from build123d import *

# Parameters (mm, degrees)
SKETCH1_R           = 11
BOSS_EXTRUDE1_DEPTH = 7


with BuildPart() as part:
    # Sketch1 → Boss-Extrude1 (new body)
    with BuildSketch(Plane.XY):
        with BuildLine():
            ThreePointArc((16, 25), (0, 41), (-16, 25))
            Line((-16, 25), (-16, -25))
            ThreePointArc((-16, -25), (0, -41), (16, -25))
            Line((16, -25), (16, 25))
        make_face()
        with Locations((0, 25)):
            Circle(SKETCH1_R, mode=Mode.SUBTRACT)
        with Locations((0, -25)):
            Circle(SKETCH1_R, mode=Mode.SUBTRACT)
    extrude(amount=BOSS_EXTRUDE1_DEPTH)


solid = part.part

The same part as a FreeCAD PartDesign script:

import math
import FreeCAD as App
import Part
import Sketcher

V = App.Vector
Q = App.Units.Quantity

doc = App.newDocument("Part")
body = doc.addObject("PartDesign::Body", "Body")

sketch1 = body.newObject("Sketcher::SketchObject", "Sketch")
sketch1.AttachmentSupport = (doc.getObject("XY_Plane"), [""])
sketch1.MapMode = "FlatFace"
sketch1.addGeometry(Part.ArcOfCircle(Part.Circle(V(0, 25, 0), V(0, 0, 1), 16), math.radians(0), math.radians(180)), False)
sketch1.addGeometry(Part.LineSegment(V(-16, 25, 0), V(-16, -25, 0)), False)
sketch1.addGeometry(Part.ArcOfCircle(Part.Circle(V(0, -25, 0), V(0, 0, 1), 16), math.radians(180), math.radians(360)), False)
sketch1.addGeometry(Part.LineSegment(V(16, -25, 0), V(16, 25, 0)), False)
sketch1.addGeometry(Part.Circle(V(0, -25, 0), V(0, 0, 1), 11), False)
sketch1.addGeometry(Part.Circle(V(0, 25, 0), V(0, 0, 1), 11), False)
sketch1.addConstraint(Sketcher.Constraint("Tangent", 0, 2, 1, 1))
sketch1.addConstraint(Sketcher.Constraint("Tangent", 1, 2, 2, 1))
sketch1.addConstraint(Sketcher.Constraint("Tangent", 2, 2, 3, 1))
sketch1.addConstraint(Sketcher.Constraint("Tangent", 3, 2, 0, 1))
sketch1.addConstraint(Sketcher.Constraint("Vertical", 1))
sketch1.addConstraint(Sketcher.Constraint("Vertical", 3))
sketch1.addConstraint(Sketcher.Constraint("Coincident", 4, 3, 2, 3))
sketch1.addConstraint(Sketcher.Constraint("Coincident", 5, 3, 0, 3))
sketch1.addConstraint(Sketcher.Constraint("Equal", 4, 5))
sketch1.addConstraint(Sketcher.Constraint("Symmetric", 0, 3, 2, 3, -1, 1))
sketch1.addConstraint(Sketcher.Constraint("Diameter", 4, Q("22 mm")))
sketch1.addConstraint(Sketcher.Constraint("Radius", 0, Q("16 mm")))
sketch1.addConstraint(Sketcher.Constraint("DistanceY", 1, 2, 1, 1, Q("50 mm")))
pad1 = body.newObject("PartDesign::Pad", "Pad")
pad1.Profile = sketch1
pad1.Length = 7

doc.recompute()
